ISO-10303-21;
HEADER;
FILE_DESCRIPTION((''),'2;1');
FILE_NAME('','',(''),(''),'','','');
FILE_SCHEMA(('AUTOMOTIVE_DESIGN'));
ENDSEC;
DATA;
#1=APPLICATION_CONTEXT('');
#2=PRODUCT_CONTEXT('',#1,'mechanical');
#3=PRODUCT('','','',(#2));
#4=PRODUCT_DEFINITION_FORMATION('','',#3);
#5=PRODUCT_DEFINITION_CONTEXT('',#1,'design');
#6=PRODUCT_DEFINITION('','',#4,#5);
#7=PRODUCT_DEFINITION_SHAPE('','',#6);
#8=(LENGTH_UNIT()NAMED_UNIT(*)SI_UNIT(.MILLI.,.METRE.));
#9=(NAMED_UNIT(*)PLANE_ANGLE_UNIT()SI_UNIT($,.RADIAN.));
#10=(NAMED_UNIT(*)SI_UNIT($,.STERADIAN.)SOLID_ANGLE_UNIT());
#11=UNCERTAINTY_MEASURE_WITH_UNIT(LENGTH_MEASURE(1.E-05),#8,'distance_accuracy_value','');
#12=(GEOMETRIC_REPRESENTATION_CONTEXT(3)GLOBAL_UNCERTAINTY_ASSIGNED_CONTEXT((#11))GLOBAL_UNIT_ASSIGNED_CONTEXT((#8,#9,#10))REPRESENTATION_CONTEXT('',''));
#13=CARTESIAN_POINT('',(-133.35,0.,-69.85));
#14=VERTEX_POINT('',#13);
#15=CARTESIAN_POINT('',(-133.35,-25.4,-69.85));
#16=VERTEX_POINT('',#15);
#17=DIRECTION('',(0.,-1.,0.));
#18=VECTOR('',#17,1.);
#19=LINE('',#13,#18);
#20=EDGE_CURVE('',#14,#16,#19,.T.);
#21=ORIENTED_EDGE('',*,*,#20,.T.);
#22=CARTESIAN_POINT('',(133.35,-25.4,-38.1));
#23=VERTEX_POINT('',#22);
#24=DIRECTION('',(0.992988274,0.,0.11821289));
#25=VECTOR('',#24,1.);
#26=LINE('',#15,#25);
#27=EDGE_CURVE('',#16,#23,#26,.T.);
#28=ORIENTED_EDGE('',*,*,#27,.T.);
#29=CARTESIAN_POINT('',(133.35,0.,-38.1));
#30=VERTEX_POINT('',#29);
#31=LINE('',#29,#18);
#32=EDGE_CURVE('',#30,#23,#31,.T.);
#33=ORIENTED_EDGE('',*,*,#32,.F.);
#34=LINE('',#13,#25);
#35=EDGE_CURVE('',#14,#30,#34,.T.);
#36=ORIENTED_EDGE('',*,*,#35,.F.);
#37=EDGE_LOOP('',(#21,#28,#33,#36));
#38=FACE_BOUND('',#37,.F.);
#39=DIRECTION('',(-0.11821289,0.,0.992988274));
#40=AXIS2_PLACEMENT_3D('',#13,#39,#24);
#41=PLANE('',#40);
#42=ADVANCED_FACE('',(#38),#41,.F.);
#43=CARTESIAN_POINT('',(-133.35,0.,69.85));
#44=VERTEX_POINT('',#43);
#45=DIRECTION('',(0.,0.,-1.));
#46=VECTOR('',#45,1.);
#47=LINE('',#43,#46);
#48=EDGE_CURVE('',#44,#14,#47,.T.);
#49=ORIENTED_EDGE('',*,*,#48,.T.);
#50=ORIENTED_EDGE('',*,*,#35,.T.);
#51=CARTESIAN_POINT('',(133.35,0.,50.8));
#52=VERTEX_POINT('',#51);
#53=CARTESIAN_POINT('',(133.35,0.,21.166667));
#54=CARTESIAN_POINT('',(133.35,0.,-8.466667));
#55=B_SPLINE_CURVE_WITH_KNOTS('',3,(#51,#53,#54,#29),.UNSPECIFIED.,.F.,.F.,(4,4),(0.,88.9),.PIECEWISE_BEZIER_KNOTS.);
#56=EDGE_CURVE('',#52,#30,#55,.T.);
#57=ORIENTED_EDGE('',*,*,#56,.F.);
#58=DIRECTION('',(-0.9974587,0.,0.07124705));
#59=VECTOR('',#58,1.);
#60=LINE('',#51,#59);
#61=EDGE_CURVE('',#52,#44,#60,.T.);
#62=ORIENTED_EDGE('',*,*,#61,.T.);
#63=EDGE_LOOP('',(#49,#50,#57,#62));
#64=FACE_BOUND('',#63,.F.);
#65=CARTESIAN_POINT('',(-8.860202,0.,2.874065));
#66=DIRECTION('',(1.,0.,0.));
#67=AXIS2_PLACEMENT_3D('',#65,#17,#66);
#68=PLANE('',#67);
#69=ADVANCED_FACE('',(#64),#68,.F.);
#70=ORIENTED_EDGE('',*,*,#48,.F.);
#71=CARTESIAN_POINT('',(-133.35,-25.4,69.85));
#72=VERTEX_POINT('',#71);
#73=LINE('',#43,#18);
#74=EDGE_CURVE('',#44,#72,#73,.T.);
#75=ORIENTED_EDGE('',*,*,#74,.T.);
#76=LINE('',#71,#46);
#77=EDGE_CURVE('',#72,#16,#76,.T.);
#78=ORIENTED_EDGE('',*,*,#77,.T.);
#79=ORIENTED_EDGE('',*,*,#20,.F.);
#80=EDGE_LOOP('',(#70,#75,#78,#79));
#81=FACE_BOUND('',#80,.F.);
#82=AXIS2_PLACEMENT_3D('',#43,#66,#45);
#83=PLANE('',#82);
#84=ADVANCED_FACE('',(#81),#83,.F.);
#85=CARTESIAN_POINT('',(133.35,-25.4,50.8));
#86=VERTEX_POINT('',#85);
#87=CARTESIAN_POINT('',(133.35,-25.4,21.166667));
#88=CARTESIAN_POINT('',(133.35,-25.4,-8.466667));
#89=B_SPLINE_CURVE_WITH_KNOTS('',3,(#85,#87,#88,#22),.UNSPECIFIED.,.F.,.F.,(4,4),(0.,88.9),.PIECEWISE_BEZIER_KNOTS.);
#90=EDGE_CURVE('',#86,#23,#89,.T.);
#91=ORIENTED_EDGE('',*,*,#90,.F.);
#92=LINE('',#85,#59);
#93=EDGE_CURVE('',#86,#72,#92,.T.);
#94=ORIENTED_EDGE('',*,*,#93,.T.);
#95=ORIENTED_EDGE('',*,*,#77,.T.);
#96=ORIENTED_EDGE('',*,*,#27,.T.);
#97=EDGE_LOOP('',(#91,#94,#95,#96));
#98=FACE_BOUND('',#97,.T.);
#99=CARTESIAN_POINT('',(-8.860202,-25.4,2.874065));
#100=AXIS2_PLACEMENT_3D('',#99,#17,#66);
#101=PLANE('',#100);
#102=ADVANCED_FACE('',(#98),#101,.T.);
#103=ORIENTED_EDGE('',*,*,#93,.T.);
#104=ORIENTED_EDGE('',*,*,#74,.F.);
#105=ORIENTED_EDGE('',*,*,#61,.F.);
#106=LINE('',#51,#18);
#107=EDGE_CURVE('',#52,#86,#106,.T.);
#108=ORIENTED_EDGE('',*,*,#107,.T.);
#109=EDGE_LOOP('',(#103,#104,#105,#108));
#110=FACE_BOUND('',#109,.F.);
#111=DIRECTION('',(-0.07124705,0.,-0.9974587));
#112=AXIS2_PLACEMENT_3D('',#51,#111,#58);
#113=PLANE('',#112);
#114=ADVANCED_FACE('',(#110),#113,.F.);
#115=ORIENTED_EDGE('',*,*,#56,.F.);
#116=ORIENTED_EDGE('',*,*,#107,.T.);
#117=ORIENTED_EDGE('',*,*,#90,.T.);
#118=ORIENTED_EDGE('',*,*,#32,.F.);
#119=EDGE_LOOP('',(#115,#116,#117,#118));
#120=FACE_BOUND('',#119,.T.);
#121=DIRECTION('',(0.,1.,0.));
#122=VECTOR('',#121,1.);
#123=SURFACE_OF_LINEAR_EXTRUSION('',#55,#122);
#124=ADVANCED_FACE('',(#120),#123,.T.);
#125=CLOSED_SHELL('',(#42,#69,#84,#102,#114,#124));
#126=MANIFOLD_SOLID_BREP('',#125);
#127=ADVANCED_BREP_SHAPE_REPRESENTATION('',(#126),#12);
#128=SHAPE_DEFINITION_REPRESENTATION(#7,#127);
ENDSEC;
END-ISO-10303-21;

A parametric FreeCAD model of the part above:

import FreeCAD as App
import Part
import Sketcher
from FreeCAD import Vector
Q = App.Units.Quantity

doc = App.newDocument("Part")
body = doc.addObject("PartDesign::Body", "Body")

# Sketch on XZ plane
sketch1 = body.newObject("Sketcher::SketchObject", "Sketch")
sketch1.AttachmentSupport = (doc.getObject("XZ_Plane"), [""])
sketch1.MapMode = "FlatFace"
sketch1.addGeometry([
    Part.LineSegment(Vector(133.35, 50.8, 0), Vector(-133.35, 69.85, 0)),
    Part.LineSegment(Vector(-133.35, 69.85, 0), Vector(-133.35, -69.85, 0)),
    Part.LineSegment(Vector(-133.35, -69.85, 0), Vector(133.35, -38.1, 0)),
    Part.BSplineCurve([Vector(133.35, 50.8, 0), Vector(133.35, 21.166667, 0), Vector(133.35, -8.466667, 0), Vector(133.35, -38.1, 0)], [4, 4], [0, 88.9], False, 3, [1, 1, 1, 1], False),
], False)
sketch1.addConstraint([
    Sketcher.Constraint("Block", 3),
    Sketcher.Constraint("Coincident", 0, 2, 1, 1),
    Sketcher.Constraint("Coincident", 1, 2, 2, 1),
    Sketcher.Constraint("Coincident", 2, 2, 3, 2),
    Sketcher.Constraint("Coincident", 3, 1, 0, 1),
    Sketcher.Constraint("Vertical", 1),
    Sketcher.Constraint("DistanceY", 1, 2, 1, 1, Q("5.5 in")),
    Sketcher.Constraint("DistanceX", 1, 2, 2, 2, Q("10.5 in")),
    Sketcher.Constraint("DistanceY", -1, 1, 0, 2, Q("2.75 in")),
])
pad1 = body.newObject("PartDesign::Pad", "Pad")
pad1.Profile = sketch1
pad1.Length = Q("1 in")

doc.recompute()
